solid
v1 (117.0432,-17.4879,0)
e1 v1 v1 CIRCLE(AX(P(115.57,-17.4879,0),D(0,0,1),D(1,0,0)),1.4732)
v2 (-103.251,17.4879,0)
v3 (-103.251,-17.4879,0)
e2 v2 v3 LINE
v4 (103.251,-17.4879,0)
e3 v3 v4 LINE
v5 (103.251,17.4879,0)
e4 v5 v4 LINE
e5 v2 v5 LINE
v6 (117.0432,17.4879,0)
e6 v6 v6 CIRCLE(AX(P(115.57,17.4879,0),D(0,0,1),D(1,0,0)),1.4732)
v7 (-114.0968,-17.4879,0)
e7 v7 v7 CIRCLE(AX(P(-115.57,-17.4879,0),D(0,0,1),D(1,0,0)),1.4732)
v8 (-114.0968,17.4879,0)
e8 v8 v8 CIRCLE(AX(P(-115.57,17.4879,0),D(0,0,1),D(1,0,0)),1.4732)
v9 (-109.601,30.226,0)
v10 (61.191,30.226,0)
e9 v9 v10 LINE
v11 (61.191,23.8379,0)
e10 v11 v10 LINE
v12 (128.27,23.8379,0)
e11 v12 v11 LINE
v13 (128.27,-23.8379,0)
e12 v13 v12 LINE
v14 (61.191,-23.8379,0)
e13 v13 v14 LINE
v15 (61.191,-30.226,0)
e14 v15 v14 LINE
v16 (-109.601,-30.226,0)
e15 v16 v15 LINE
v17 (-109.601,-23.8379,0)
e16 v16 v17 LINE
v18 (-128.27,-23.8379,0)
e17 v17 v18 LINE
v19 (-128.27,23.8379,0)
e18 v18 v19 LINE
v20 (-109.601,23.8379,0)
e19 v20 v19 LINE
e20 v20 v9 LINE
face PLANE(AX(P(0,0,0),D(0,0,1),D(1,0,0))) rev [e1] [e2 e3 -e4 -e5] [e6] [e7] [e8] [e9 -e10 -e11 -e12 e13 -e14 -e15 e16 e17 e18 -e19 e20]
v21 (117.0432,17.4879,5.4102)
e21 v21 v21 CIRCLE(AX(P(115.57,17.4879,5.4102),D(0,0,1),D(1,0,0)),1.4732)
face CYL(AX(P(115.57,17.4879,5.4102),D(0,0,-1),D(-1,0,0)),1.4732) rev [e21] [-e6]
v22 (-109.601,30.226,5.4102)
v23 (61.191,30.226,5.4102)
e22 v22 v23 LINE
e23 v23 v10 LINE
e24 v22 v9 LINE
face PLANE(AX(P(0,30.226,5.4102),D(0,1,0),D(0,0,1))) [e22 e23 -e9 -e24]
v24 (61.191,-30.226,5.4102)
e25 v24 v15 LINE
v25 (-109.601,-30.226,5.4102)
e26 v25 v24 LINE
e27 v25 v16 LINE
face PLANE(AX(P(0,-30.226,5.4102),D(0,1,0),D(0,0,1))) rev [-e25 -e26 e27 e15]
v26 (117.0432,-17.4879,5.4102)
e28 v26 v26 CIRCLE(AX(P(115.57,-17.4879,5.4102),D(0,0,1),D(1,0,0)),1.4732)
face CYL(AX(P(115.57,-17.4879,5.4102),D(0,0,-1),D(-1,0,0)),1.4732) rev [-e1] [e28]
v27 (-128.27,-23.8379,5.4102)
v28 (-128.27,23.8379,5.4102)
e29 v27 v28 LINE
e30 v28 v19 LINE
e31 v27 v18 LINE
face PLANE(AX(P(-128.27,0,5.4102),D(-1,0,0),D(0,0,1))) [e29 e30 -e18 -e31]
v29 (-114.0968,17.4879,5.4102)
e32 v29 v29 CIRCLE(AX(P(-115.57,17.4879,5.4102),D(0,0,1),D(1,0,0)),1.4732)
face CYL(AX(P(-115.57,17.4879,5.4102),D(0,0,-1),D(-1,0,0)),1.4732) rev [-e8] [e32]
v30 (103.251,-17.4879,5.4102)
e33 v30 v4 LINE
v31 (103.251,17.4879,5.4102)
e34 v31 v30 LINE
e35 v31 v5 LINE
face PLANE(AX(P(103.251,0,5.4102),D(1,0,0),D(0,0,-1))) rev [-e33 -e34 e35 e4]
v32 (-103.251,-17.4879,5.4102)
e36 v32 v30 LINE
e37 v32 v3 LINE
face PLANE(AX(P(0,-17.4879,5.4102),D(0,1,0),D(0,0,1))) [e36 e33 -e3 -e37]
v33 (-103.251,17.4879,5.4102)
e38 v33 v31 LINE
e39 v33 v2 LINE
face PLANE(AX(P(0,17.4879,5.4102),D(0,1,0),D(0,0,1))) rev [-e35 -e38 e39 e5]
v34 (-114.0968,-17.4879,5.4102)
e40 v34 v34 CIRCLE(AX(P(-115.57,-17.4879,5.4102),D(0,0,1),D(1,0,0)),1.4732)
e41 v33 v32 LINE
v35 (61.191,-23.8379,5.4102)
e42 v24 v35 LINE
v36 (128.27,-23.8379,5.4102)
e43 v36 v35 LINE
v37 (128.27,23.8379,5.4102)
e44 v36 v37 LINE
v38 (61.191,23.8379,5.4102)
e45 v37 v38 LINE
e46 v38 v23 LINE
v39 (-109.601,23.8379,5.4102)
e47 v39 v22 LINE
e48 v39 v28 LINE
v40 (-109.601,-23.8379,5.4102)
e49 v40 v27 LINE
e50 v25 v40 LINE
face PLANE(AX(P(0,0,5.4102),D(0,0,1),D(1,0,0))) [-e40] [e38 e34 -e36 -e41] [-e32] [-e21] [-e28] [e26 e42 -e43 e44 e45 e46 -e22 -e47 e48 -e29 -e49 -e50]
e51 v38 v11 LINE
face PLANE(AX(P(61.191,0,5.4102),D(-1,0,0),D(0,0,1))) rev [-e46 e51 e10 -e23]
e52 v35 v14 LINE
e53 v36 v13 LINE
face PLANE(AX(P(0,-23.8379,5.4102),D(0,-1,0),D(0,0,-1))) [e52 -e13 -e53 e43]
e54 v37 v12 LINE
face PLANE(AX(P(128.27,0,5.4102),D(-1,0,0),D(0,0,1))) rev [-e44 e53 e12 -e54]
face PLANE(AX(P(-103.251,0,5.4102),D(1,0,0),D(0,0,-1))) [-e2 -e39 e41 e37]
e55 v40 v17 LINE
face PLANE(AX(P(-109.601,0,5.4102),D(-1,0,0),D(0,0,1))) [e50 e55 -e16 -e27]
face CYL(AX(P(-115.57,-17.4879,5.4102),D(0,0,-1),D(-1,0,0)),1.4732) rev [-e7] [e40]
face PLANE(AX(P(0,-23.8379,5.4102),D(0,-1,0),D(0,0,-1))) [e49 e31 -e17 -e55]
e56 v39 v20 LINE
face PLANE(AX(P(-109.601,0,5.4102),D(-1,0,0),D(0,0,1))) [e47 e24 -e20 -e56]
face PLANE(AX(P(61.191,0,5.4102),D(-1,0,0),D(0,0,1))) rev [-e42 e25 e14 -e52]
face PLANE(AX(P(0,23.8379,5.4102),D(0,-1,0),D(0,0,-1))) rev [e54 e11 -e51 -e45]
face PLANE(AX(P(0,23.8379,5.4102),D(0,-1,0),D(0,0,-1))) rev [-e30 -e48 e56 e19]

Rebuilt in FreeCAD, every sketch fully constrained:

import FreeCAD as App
import Part
import Sketcher
from FreeCAD import Vector
Q = App.Units.Quantity


def add_polygon(sketch, points):
    """Adds a closed chain of lines whose ends are joined by coincident constraints."""
    first, n = sketch.GeometryCount, len(points)
    for a, b in zip(points, points[1:] + points[:1]):
        sketch.addGeometry(Part.LineSegment(App.Vector(*a, 0), App.Vector(*b, 0)), False)
    for i in range(n):
        sketch.addConstraint(Sketcher.Constraint("Coincident", first + i, 2, first + (i + 1) % n, 1))

doc = App.newDocument("Part")
params = doc.addObject("Spreadsheet::Sheet", "Params")
for row, (alias, value) in enumerate([
    ("sketch1_diameter", "0.116 in"),
    ("sketch1_width", "8.13 in"),
    ("sketch1_width2", "0.735 in"),
    ("sketch1_height", "1.877 in"),
    ("sketch1_height2", "1.377 in"),
    ("pad1_length", "0.213 in"),
], start=1):
    params.set(f"A{row}", alias)
    params.set(f"B{row}", "=" + value)
    params.setAlias(f"B{row}", alias)

body = doc.addObject("PartDesign::Body", "Body")

sketch1 = doc.addObject("Sketcher::SketchObject", "Sketch")
body.addObject(sketch1)
sketch1.AttachmentSupport = (doc.XY_Plane, [""])
sketch1.MapMode = "FlatFace"
add_polygon(sketch1, [(61.2, 23.8), (61.2, 30.2), (-109.6, 30.2), (-109.6, 23.8), (-128.3, 23.8), (-128.3, -23.8), (-109.6, -23.8), (-109.6, -30.2), (61.2, -30.2), (61.2, -23.8), (128.3, -23.8), (128.3, 23.8)])
sketch1.addGeometry(Part.Circle(Vector(-115.6, -17.5, 0), Vector(0, 0, 1), 1.5), False)
sketch1.addGeometry(Part.Circle(Vector(115.6, -17.5, 0), Vector(0, 0, 1), 1.5), False)
sketch1.addGeometry(Part.Circle(Vector(-115.6, 17.5, 0), Vector(0, 0, 1), 1.5), False)
add_polygon(sketch1, [(103.3, -17.5), (-103.3, -17.5), (-103.3, 17.5), (103.3, 17.5)])
sketch1.addGeometry(Part.Circle(Vector(115.6, 17.5, 0), Vector(0, 0, 1), 1.5), False)
sketch1.addConstraint([
    Sketcher.Constraint("Vertical", 0),
    Sketcher.Constraint("Horizontal", 1),
    Sketcher.Constraint("Vertical", 2),
    Sketcher.Constraint("Horizontal", 3),
    Sketcher.Constraint("Vertical", 4),
    Sketcher.Constraint("Horizontal", 5),
    Sketcher.Constraint("Vertical", 6),
    Sketcher.Constraint("Horizontal", 7),
    Sketcher.Constraint("Vertical", 8),
    Sketcher.Constraint("Horizontal", 9),
    Sketcher.Constraint("Vertical", 10),
    Sketcher.Constraint("Horizontal", 11),
    Sketcher.Constraint("Horizontal", 15),
    Sketcher.Constraint("Vertical", 16),
    Sketcher.Constraint("Horizontal", 17),
    Sketcher.Constraint("Vertical", 18),
    Sketcher.Constraint("Equal", 12, 13),
    Sketcher.Constraint("Equal", 13, 14),
    Sketcher.Constraint("Equal", 14, 19),
    Sketcher.Constraint("Symmetric", 13, 3, 14, 3, -1, 1),
    Sketcher.Constraint("Symmetric", 12, 3, 19, 3, -1, 1),
    Sketcher.Constraint("Symmetric", 3, 2, 9, 2, -1, 1),
    Sketcher.Constraint("Symmetric", 15, 2, 17, 2, -1, 1),
    Sketcher.Constraint("Symmetric", 12, 3, 13, 3, -2),
    Sketcher.Constraint("Symmetric", 2, 2, 5, 2, -1),
    Sketcher.Constraint("Symmetric", 0, 2, 7, 2, -1),
    Sketcher.Constraint("Horizontal", 3, 2, 10, 2),
    Sketcher.Constraint("Horizontal", 13, 3, 15, 2),
    Sketcher.Constraint("Diameter", 12, Q("0.116 in")),
    Sketcher.Constraint("DistanceX", 15, 2, 15, 1, Q("8.13 in")),
    Sketcher.Constraint("DistanceX", 12, 3, 13, 3, Q("9.1 in")),
    Sketcher.Constraint("DistanceX", 3, 2, 14, 3, Q("0.5 in")),
    Sketcher.Constraint("DistanceX", 3, 2, 3, 1, Q("0.735 in")),
    Sketcher.Constraint("DistanceY", 4, 2, 4, 1, Q("1.877 in")),
    Sketcher.Constraint("DistanceY", 16, 1, 16, 2, Q("1.377 in")),
    Sketcher.Constraint("DistanceY", -1, 1, 0, 2, Q("1.19 in")),
    Sketcher.Constraint("DistanceX", 1, 2, 1, 1, 170.792),
])
sketch1.setExpression("Constraints[44]", "Params.sketch1_diameter")
sketch1.setExpression("Constraints[45]", "Params.sketch1_width")
sketch1.setExpression("Constraints[48]", "Params.sketch1_width2")
sketch1.setExpression("Constraints[49]", "Params.sketch1_height")
sketch1.setExpression("Constraints[50]", "Params.sketch1_height2")
pad1 = doc.addObject("PartDesign::Pad", "Pad")
body.addObject(pad1)
pad1.Profile = sketch1
pad1.setExpression("Length", "Params.pad1_length")

doc.recompute()
